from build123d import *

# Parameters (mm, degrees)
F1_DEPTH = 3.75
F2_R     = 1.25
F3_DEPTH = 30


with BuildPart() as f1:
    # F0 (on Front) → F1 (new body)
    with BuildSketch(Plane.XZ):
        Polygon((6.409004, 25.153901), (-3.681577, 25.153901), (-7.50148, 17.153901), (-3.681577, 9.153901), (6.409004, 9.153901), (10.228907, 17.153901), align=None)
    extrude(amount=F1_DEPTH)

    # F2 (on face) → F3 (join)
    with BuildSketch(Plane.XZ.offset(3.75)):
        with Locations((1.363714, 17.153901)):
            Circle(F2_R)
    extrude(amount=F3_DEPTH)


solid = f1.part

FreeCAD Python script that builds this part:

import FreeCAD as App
import Part
import Sketcher

V = App.Vector


def add_polygon(sketch, points):
    """Adds a closed chain of lines whose ends are joined by coincident constraints."""
    first, n = sketch.GeometryCount, len(points)
    for a, b in zip(points, points[1:] + points[:1]):
        sketch.addGeometry(Part.LineSegment(App.Vector(*a, 0), App.Vector(*b, 0)), False)
    for i in range(n):
        sketch.addConstraint(Sketcher.Constraint("Coincident", first + i, 2, first + (i + 1) % n, 1))

doc = App.newDocument("Part")
body = doc.addObject("PartDesign::Body", "Body")

# Sketch on XZ plane
sketch1 = body.newObject("Sketcher::SketchObject", "Sketch")
sketch1.AttachmentSupport = (doc.getObject("XZ_Plane"), [""])
sketch1.MapMode = "FlatFace"
add_polygon(sketch1, [(6, 25), (-4, 25), (-8, 17), (-4, 9), (6, 9), (10, 17)])  # lines 0-5
sketch1.addConstraint([
    Sketcher.Constraint("Horizontal", 0),
    Sketcher.Constraint("Horizontal", 3),
    Sketcher.Constraint("Parallel", 1, 4),
    Sketcher.Constraint("Parallel", 2, 5),
    Sketcher.Constraint("Horizontal", 1, 2, 4, 2),
    Sketcher.Constraint("Vertical", 0, 2, 2, 2),
    Sketcher.Constraint("Vertical", 3, 2, 5, 2),
    Sketcher.Constraint("DistanceY", 1, 2, 0, 2, 8.0),
    Sketcher.Constraint("DistanceX", 0, 2, 0, 1, 10.090581),
    Sketcher.Constraint("DistanceY", -1, 1, 0, 2, 25.153901),
    Sketcher.Constraint("DistanceX", 1, 2, -1, 1, 7.50148),
    Sketcher.Constraint("Distance", 1, 8.865194),
])
pad1 = body.newObject("PartDesign::Pad", "Pad")
pad1.Profile = sketch1
pad1.Length = 3.75

# Sketch on XZ plane
sketch2 = body.newObject("Sketcher::SketchObject", "Sketch001")
sketch2.AttachmentSupport = (doc.getObject("XZ_Plane"), [""])
sketch2.MapMode = "FlatFace"
sketch2.AttachmentOffset = App.Placement(V(0, 0, 3.75), App.Rotation())
sketch2.addGeometry(Part.Circle(V(1.4, 17.2, 0), V(0, 0, 1), 1.2), False)
sketch2.addConstraint([
    Sketcher.Constraint("Diameter", 0, 2.5),
    Sketcher.Constraint("DistanceY", -1, 1, 0, 3, 17.153901),
    Sketcher.Constraint("DistanceX", -1, 1, 0, 3, 1.363714),
])
pad2 = body.newObject("PartDesign::Pad", "Pad001")
pad2.Profile = sketch2
pad2.Length = 30

doc.recompute()
